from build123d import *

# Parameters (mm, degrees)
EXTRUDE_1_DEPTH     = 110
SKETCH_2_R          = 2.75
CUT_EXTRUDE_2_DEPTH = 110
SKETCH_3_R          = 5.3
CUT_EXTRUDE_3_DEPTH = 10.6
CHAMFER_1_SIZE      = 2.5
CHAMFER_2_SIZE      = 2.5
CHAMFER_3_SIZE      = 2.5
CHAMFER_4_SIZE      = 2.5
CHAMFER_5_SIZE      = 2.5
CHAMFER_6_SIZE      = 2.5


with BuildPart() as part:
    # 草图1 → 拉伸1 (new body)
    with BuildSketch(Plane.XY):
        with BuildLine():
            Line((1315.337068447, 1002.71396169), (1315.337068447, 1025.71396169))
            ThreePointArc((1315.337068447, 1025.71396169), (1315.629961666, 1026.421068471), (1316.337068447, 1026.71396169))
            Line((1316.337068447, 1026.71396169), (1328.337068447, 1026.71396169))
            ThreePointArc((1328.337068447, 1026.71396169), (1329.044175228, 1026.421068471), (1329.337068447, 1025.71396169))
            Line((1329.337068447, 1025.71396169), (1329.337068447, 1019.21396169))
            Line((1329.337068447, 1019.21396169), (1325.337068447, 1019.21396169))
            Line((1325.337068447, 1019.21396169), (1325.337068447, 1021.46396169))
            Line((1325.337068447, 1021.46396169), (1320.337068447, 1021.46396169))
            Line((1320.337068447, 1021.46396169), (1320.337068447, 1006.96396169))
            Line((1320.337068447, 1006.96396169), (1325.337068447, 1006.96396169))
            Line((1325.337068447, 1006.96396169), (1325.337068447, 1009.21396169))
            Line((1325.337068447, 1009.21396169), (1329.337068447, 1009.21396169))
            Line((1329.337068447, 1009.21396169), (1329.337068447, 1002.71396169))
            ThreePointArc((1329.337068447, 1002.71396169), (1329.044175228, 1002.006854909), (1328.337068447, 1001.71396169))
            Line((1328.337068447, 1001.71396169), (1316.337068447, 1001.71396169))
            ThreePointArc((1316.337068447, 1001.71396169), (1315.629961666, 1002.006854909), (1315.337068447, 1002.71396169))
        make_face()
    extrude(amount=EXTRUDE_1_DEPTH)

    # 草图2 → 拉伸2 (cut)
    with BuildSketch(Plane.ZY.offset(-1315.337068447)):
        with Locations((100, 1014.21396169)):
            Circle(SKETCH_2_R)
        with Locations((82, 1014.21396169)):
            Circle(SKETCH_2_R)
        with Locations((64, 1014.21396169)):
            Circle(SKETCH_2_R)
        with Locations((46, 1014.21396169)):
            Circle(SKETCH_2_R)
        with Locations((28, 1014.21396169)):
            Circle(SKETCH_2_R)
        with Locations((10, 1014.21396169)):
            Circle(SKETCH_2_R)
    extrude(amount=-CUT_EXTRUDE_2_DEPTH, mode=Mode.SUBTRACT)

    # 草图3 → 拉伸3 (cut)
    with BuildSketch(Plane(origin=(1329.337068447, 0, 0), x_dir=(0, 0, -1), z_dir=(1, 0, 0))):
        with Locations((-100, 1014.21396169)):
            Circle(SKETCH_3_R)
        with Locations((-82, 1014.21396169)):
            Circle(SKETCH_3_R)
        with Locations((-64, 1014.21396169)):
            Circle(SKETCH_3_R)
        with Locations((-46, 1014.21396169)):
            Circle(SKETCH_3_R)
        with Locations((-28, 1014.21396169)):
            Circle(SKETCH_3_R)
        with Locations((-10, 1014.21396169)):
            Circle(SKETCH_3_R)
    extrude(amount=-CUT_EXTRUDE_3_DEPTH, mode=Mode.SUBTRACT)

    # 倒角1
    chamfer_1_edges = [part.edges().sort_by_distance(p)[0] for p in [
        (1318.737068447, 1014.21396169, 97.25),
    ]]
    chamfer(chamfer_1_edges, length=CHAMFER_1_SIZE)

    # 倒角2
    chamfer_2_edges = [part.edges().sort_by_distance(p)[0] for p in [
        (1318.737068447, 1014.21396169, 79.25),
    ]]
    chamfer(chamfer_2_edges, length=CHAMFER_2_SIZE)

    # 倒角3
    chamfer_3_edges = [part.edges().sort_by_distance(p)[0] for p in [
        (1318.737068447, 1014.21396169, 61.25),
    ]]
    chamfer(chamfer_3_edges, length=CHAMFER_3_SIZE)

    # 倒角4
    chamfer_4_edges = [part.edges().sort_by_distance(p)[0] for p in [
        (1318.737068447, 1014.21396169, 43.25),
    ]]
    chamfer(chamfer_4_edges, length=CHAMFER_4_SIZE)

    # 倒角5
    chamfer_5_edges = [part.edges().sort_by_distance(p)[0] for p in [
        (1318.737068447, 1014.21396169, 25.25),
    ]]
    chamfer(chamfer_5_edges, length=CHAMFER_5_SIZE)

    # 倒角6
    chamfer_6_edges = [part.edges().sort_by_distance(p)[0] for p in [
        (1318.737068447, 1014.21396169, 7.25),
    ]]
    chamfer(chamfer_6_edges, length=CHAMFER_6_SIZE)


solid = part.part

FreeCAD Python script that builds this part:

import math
import FreeCAD as App
import Part
import Sketcher
from FreeCAD import Vector


def edges_at(feature, points):
    """Names of the edges that pass closest to the given points."""
    edges = feature.Shape.Edges
    near = lambda p: min(range(len(edges)), key=lambda i: edges[i].distToShape(Part.Vertex(*p))[0])
    return sorted({f"Edge{near(p) + 1}" for p in points})

doc = App.newDocument("Part")
body = doc.addObject("PartDesign::Body", "Body")

sketch1 = body.newObject("Sketcher::SketchObject", "Sketch")
sketch1.AttachmentSupport = (doc.getObject("XY_Plane"), [""])
sketch1.MapMode = "FlatFace"
sketch1.addGeometry(Part.LineSegment(Vector(1315.3, 1025.7, 0), Vector(1315.3, 1002.7, 0)), False)
sketch1.addGeometry(Part.ArcOfCircle(Part.Circle(Vector(1316.3, 1002.7, 0), Vector(0, 0, 1), 1), math.radians(-180), math.radians(-90)), False)
sketch1.addGeometry(Part.LineSegment(Vector(1316.3, 1001.7, 0), Vector(1328.3, 1001.7, 0)), False)
sketch1.addGeometry(Part.ArcOfCircle(Part.Circle(Vector(1328.3, 1002.7, 0), Vector(0, 0, 1), 1), math.radians(-90), math.radians(0)), False)
sketch1.addGeometry(Part.LineSegment(Vector(1329.3, 1002.7, 0), Vector(1329.3, 1009.2, 0)), False)
sketch1.addGeometry(Part.LineSegment(Vector(1329.3, 1009.2, 0), Vector(1325.3, 1009.2, 0)), False)
sketch1.addGeometry(Part.LineSegment(Vector(1325.3, 1009.2, 0), Vector(1325.3, 1007, 0)), False)
sketch1.addGeometry(Part.LineSegment(Vector(1325.3, 1007, 0), Vector(1320.3, 1007, 0)), False)
sketch1.addGeometry(Part.LineSegment(Vector(1320.3, 1007, 0), Vector(1320.3, 1021.5, 0)), False)
sketch1.addGeometry(Part.LineSegment(Vector(1320.3, 1021.5, 0), Vector(1325.3, 1021.5, 0)), False)
sketch1.addGeometry(Part.LineSegment(Vector(1325.3, 1021.5, 0), Vector(1325.3, 1019.2, 0)), False)
sketch1.addGeometry(Part.LineSegment(Vector(1325.3, 1019.2, 0), Vector(1329.3, 1019.2, 0)), False)
sketch1.addGeometry(Part.LineSegment(Vector(1329.3, 1019.2, 0), Vector(1329.3, 1025.7, 0)), False)
sketch1.addGeometry(Part.ArcOfCircle(Part.Circle(Vector(1328.3, 1025.7, 0), Vector(0, 0, 1), 1), math.radians(0), math.radians(90)), False)
sketch1.addGeometry(Part.LineSegment(Vector(1328.3, 1026.7, 0), Vector(1316.3, 1026.7, 0)), False)
sketch1.addGeometry(Part.ArcOfCircle(Part.Circle(Vector(1316.3, 1025.7, 0), Vector(0, 0, 1), 1), math.radians(90), math.radians(180)), False)
sketch1.addConstraint(Sketcher.Constraint("Tangent", 0, 2, 1, 1))
sketch1.addConstraint(Sketcher.Constraint("Tangent", 1, 2, 2, 1))
sketch1.addConstraint(Sketcher.Constraint("Tangent", 2, 2, 3, 1))
sketch1.addConstraint(Sketcher.Constraint("Tangent", 3, 2, 4, 1))
sketch1.addConstraint(Sketcher.Constraint("Coincident", 4, 2, 5, 1))
sketch1.addConstraint(Sketcher.Constraint("Coincident", 5, 2, 6, 1))
sketch1.addConstraint(Sketcher.Constraint("Coincident", 6, 2, 7, 1))
sketch1.addConstraint(Sketcher.Constraint("Coincident", 7, 2, 8, 1))
sketch1.addConstraint(Sketcher.Constraint("Coincident", 8, 2, 9, 1))
sketch1.addConstraint(Sketcher.Constraint("Coincident", 9, 2, 10, 1))
sketch1.addConstraint(Sketcher.Constraint("Coincident", 10, 2, 11, 1))
sketch1.addConstraint(Sketcher.Constraint("Coincident", 11, 2, 12, 1))
sketch1.addConstraint(Sketcher.Constraint("Tangent", 12, 2, 13, 1))
sketch1.addConstraint(Sketcher.Constraint("Tangent", 13, 2, 14, 1))
sketch1.addConstraint(Sketcher.Constraint("Tangent", 14, 2, 15, 1))
sketch1.addConstraint(Sketcher.Constraint("Tangent", 15, 2, 0, 1))
sketch1.addConstraint(Sketcher.Constraint("Vertical", 0))
sketch1.addConstraint(Sketcher.Constraint("Horizontal", 2))
sketch1.addConstraint(Sketcher.Constraint("Vertical", 4))
sketch1.addConstraint(Sketcher.Constraint("Horizontal", 5))
sketch1.addConstraint(Sketcher.Constraint("Vertical", 6))
sketch1.addConstraint(Sketcher.Constraint("Horizontal", 7))
sketch1.addConstraint(Sketcher.Constraint("Vertical", 8))
sketch1.addConstraint(Sketcher.Constraint("Horizontal", 9))
sketch1.addConstraint(Sketcher.Constraint("Vertical", 10))
sketch1.addConstraint(Sketcher.Constraint("Horizontal", 11))
sketch1.addConstraint(Sketcher.Constraint("Vertical", 12))
sketch1.addConstraint(Sketcher.Constraint("Horizontal", 14))
sketch1.addConstraint(Sketcher.Constraint("Equal", 1, 3))
sketch1.addConstraint(Sketcher.Constraint("Equal", 3, 13))
sketch1.addConstraint(Sketcher.Constraint("Equal", 13, 15))
sketch1.addConstraint(Sketcher.Constraint("Vertical", 3, 3, 13, 3))
sketch1.addConstraint(Sketcher.Constraint("Vertical", 6, 2, 9, 2))
sketch1.addConstraint(Sketcher.Constraint("Equal", 6, 10))
sketch1.addConstraint(Sketcher.Constraint("Equal", 4, 12))
sketch1.addConstraint(Sketcher.Constraint("Radius", 1, 1.0))
sketch1.addConstraint(Sketcher.Constraint("DistanceX", 2, 1, 2, 2, 12.0))
sketch1.addConstraint(Sketcher.Constraint("DistanceX", 5, 2, 5, 1, 4.0))
sketch1.addConstraint(Sketcher.Constraint("DistanceX", 7, 2, 7, 1, 5.0))
sketch1.addConstraint(Sketcher.Constraint("DistanceY", 0, 2, 0, 1, 23.0))
sketch1.addConstraint(Sketcher.Constraint("DistanceY", 4, 1, 4, 2, 6.5))
sketch1.addConstraint(Sketcher.Constraint("DistanceY", 8, 1, 8, 2, 14.5))
sketch1.addConstraint(Sketcher.Constraint("DistanceX", -1, 1, 1, 3, 1316.337068))
sketch1.addConstraint(Sketcher.Constraint("DistanceY", -1, 1, 1, 3, 1002.713962))
pad1 = body.newObject("PartDesign::Pad", "Pad")
pad1.Profile = sketch1
pad1.Length = 110

sketch2 = body.newObject("Sketcher::SketchObject", "Sketch001")
sketch2.AttachmentSupport = (doc.getObject("YZ_Plane"), [""])
sketch2.MapMode = "FlatFace"
sketch2.AttachmentOffset = App.Placement(Vector(0, 0, 1315.337068), App.Rotation())
sketch2.addGeometry(Part.Circle(Vector(1014.2, 100, 0), Vector(0, 0, 1), 2.8), False)
sketch2.addGeometry(Part.Circle(Vector(1014.2, 82, 0), Vector(0, 0, 1), 2.8), False)
sketch2.addGeometry(Part.Circle(Vector(1014.2, 64, 0), Vector(0, 0, 1), 2.8), False)
sketch2.addGeometry(Part.Circle(Vector(1014.2, 46, 0), Vector(0, 0, 1), 2.8), False)
sketch2.addGeometry(Part.Circle(Vector(1014.2, 28, 0), Vector(0, 0, 1), 2.8), False)
sketch2.addGeometry(Part.Circle(Vector(1014.2, 10, 0), Vector(0, 0, 1), 2.8), False)
sketch2.addConstraint(Sketcher.Constraint("Equal", 0, 1))
sketch2.addConstraint(Sketcher.Constraint("Equal", 1, 2))
sketch2.addConstraint(Sketcher.Constraint("Equal", 2, 3))
sketch2.addConstraint(Sketcher.Constraint("Equal", 3, 4))
sketch2.addConstraint(Sketcher.Constraint("Equal", 4, 5))
sketch2.addConstraint(Sketcher.Constraint("Vertical", 0, 3, 1, 3))
sketch2.addConstraint(Sketcher.Constraint("Vertical", 1, 3, 2, 3))
sketch2.addConstraint(Sketcher.Constraint("Vertical", 2, 3, 3, 3))
sketch2.addConstraint(Sketcher.Constraint("Vertical", 3, 3, 4, 3))
sketch2.addConstraint(Sketcher.Constraint("Vertical", 4, 3, 5, 3))
sketch2.addConstraint(Sketcher.Constraint("Diameter", 0, 5.5))
sketch2.addConstraint(Sketcher.Constraint("DistanceY", -1, 1, 0, 3, 100.0))
sketch2.addConstraint(Sketcher.Constraint("DistanceY", -1, 1, 1, 3, 82.0))
sketch2.addConstraint(Sketcher.Constraint("DistanceY", -1, 1, 2, 3, 64.0))
sketch2.addConstraint(Sketcher.Constraint("DistanceY", -1, 1, 3, 3, 46.0))
sketch2.addConstraint(Sketcher.Constraint("DistanceY", -1, 1, 4, 3, 28.0))
sketch2.addConstraint(Sketcher.Constraint("DistanceY", -1, 1, 5, 3, 10.0))
sketch2.addConstraint(Sketcher.Constraint("DistanceX", -1, 1, 0, 3, 1014.213962))
pocket1 = body.newObject("PartDesign::Pocket", "Pocket")
pocket1.Profile = sketch2
pocket1.Length = 110
pocket1.Reversed = True

sketch3 = body.newObject("Sketcher::SketchObject", "Sketch002")
sketch3.AttachmentSupport = (doc.getObject("YZ_Plane"), [""])
sketch3.MapMode = "FlatFace"
sketch3.AttachmentOffset = App.Placement(Vector(0, 0, 1329.337068), App.Rotation())
sketch3.addGeometry(Part.Circle(Vector(1014, 100, 0), Vector(0, 0, 1), 5), False)
sketch3.addGeometry(Part.Circle(Vector(1014, 82, 0), Vector(0, 0, 1), 5), False)
sketch3.addGeometry(Part.Circle(Vector(1014, 64, 0), Vector(0, 0, 1), 5), False)
sketch3.addGeometry(Part.Circle(Vector(1014, 46, 0), Vector(0, 0, 1), 5), False)
sketch3.addGeometry(Part.Circle(Vector(1014, 28, 0), Vector(0, 0, 1), 5), False)
sketch3.addGeometry(Part.Circle(Vector(1014, 10, 0), Vector(0, 0, 1), 5), False)
sketch3.addConstraint(Sketcher.Constraint("Equal", 0, 1))
sketch3.addConstraint(Sketcher.Constraint("Equal", 1, 2))
sketch3.addConstraint(Sketcher.Constraint("Equal", 2, 3))
sketch3.addConstraint(Sketcher.Constraint("Equal", 3, 4))
sketch3.addConstraint(Sketcher.Constraint("Equal", 4, 5))
sketch3.addConstraint(Sketcher.Constraint("Vertical", 0, 3, 1, 3))
sketch3.addConstraint(Sketcher.Constraint("Vertical", 1, 3, 2, 3))
sketch3.addConstraint(Sketcher.Constraint("Vertical", 2, 3, 3, 3))
sketch3.addConstraint(Sketcher.Constraint("Vertical", 3, 3, 4, 3))
sketch3.addConstraint(Sketcher.Constraint("Vertical", 4, 3, 5, 3))
sketch3.addConstraint(Sketcher.Constraint("Diameter", 0, 10.6))
sketch3.addConstraint(Sketcher.Constraint("DistanceY", -1, 1, 0, 3, 100.0))
sketch3.addConstraint(Sketcher.Constraint("DistanceY", -1, 1, 1, 3, 82.0))
sketch3.addConstraint(Sketcher.Constraint("DistanceY", -1, 1, 2, 3, 64.0))
sketch3.addConstraint(Sketcher.Constraint("DistanceY", -1, 1, 3, 3, 46.0))
sketch3.addConstraint(Sketcher.Constraint("DistanceY", -1, 1, 4, 3, 28.0))
sketch3.addConstraint(Sketcher.Constraint("DistanceY", -1, 1, 5, 3, 10.0))
sketch3.addConstraint(Sketcher.Constraint("DistanceX", -1, 1, 0, 3, 1014.213962))
pocket2 = body.newObject("PartDesign::Pocket", "Pocket001")
pocket2.Profile = sketch3
pocket2.Length = 10.6
doc.recompute()

chamfer = body.newObject("PartDesign::Chamfer", "Chamfer")
chamfer.Base = (pocket2, edges_at(pocket2, [(1318.737, 1014.214, 97.25)]))
chamfer.Size = 2.5
doc.recompute()

chamfer2 = body.newObject("PartDesign::Chamfer", "Chamfer001")
chamfer2.Base = (chamfer, edges_at(chamfer, [(1318.737, 1014.214, 79.25)]))
chamfer2.Size = 2.5
doc.recompute()

chamfer3 = body.newObject("PartDesign::Chamfer", "Chamfer002")
chamfer3.Base = (chamfer2, edges_at(chamfer2, [(1318.737, 1014.214, 61.25)]))
chamfer3.Size = 2.5
doc.recompute()

chamfer4 = body.newObject("PartDesign::Chamfer", "Chamfer003")
chamfer4.Base = (chamfer3, edges_at(chamfer3, [(1318.737, 1014.214, 43.25)]))
chamfer4.Size = 2.5
doc.recompute()

chamfer5 = body.newObject("PartDesign::Chamfer", "Chamfer004")
chamfer5.Base = (chamfer4, edges_at(chamfer4, [(1318.737, 1014.214, 25.25)]))
chamfer5.Size = 2.5
doc.recompute()

chamfer6 = body.newObject("PartDesign::Chamfer", "Chamfer005")
chamfer6.Base = (chamfer5, edges_at(chamfer5, [(1318.737, 1014.214, 7.25)]))
chamfer6.Size = 2.5

doc.recompute()
